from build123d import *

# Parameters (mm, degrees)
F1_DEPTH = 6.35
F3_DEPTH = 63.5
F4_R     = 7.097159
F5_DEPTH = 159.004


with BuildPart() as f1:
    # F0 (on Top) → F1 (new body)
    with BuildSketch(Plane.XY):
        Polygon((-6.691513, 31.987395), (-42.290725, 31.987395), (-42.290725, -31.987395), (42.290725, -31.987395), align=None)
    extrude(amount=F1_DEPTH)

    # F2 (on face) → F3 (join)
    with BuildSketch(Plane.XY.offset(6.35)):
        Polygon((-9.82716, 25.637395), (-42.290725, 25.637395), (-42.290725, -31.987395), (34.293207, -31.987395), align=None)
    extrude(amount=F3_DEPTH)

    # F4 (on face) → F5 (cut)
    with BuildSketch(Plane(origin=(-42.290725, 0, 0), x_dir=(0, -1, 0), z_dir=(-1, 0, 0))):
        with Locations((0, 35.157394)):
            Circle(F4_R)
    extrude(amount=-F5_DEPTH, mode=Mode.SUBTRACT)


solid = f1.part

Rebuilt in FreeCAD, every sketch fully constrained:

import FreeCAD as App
import Part
import Sketcher
Q = App.Units.Quantity

doc = App.newDocument("Part")
body = doc.addObject("PartDesign::Body", "Body")

sketch1 = body.newObject("Sketcher::SketchObject", "Sketch")
sketch1.AttachmentSupport = (doc.getObject("XY_Plane"), [""])
sketch1.MapMode = "FlatFace"
sketch1.addGeometry(Part.LineSegment(App.Vector(-7, 32, 0), App.Vector(-42, 32, 0)), False)
sketch1.addGeometry(Part.LineSegment(App.Vector(-42, 32, 0), App.Vector(-42, -32, 0)), False)
sketch1.addGeometry(Part.LineSegment(App.Vector(-42, -32, 0), App.Vector(42, -32, 0)), False)
sketch1.addGeometry(Part.LineSegment(App.Vector(42, -32, 0), App.Vector(-7, 32, 0)), False)
sketch1.addConstraint(Sketcher.Constraint("Coincident", 0, 2, 1, 1))
sketch1.addConstraint(Sketcher.Constraint("Coincident", 1, 2, 2, 1))
sketch1.addConstraint(Sketcher.Constraint("Coincident", 2, 2, 3, 1))
sketch1.addConstraint(Sketcher.Constraint("Coincident", 3, 2, 0, 1))
sketch1.addConstraint(Sketcher.Constraint("Horizontal", 0))
sketch1.addConstraint(Sketcher.Constraint("Vertical", 1))
sketch1.addConstraint(Sketcher.Constraint("Horizontal", 2))
sketch1.addConstraint(Sketcher.Constraint("Symmetric", 0, 2, 2, 2, -1, 1))
sketch1.addConstraint(Sketcher.Constraint("DistanceX", 2, 1, 2, 2, Q("84.58145 mm")))
sketch1.addConstraint(Sketcher.Constraint("DistanceY", 1, 2, 1, 1, Q("63.97479 mm")))
sketch1.addConstraint(Sketcher.Constraint("DistanceX", 0, 2, 0, 1, Q("35.599212 mm")))
pad1 = body.newObject("PartDesign::Pad", "Pad")
pad1.Profile = sketch1
pad1.Length = Q("0.25 in")

sketch2 = body.newObject("Sketcher::SketchObject", "Sketch001")
sketch2.AttachmentSupport = (doc.getObject("XY_Plane"), [""])
sketch2.MapMode = "FlatFace"
sketch2.AttachmentOffset = App.Placement(App.Vector(0, 0, 0.25 * 25.4), App.Rotation())
sketch2.addGeometry(Part.LineSegment(App.Vector(-10, 26, 0), App.Vector(-42, 26, 0)), False)
sketch2.addGeometry(Part.LineSegment(App.Vector(-42, 26, 0), App.Vector(-42, -32, 0)), False)
sketch2.addGeometry(Part.LineSegment(App.Vector(-42, -32, 0), App.Vector(34, -32, 0)), False)
sketch2.addGeometry(Part.LineSegment(App.Vector(34, -32, 0), App.Vector(-10, 26, 0)), False)
sketch2.addConstraint(Sketcher.Constraint("Coincident", 0, 2, 1, 1))
sketch2.addConstraint(Sketcher.Constraint("Coincident", 1, 2, 2, 1))
sketch2.addConstraint(Sketcher.Constraint("Coincident", 2, 2, 3, 1))
sketch2.addConstraint(Sketcher.Constraint("Coincident", 3, 2, 0, 1))
sketch2.addConstraint(Sketcher.Constraint("Horizontal", 0))
sketch2.addConstraint(Sketcher.Constraint("Vertical", 1))
sketch2.addConstraint(Sketcher.Constraint("Horizontal", 2))
sketch2.addConstraint(Sketcher.Constraint("DistanceY", 1, 2, 1, 1, Q("57.62479 mm")))
sketch2.addConstraint(Sketcher.Constraint("DistanceX", 0, 2, 0, 1, Q("32.463565 mm")))
sketch2.addConstraint(Sketcher.Constraint("DistanceX", 2, 1, 2, 2, Q("76.583932 mm")))
sketch2.addConstraint(Sketcher.Constraint("DistanceX", 3, 2, -1, 1, Q("9.82716 mm")))
sketch2.addConstraint(Sketcher.Constraint("DistanceY", -1, 1, 0, 2, Q("25.637395 mm")))
pad2 = body.newObject("PartDesign::Pad", "Pad001")
pad2.Profile = sketch2
pad2.Length = Q("2.5 in")

sketch3 = body.newObject("Sketcher::SketchObject", "Sketch002")
sketch3.AttachmentSupport = (doc.getObject("YZ_Plane"), [""])
sketch3.MapMode = "FlatFace"
sketch3.AttachmentOffset = App.Placement(App.Vector(0, 0, -42.290725), App.Rotation())
sketch3.addGeometry(Part.Circle(App.Vector(0, 35, 0), App.Vector(0, 0, 1), 7), False)
sketch3.addConstraint(Sketcher.Constraint("PointOnObject", 0, 3, -2))
sketch3.addConstraint(Sketcher.Constraint("Diameter", 0, Q("14.194318 mm")))
sketch3.addConstraint(Sketcher.Constraint("DistanceY", -1, 1, 0, 3, Q("35.157394 mm")))
pocket1 = body.newObject("PartDesign::Pocket", "Pocket")
pocket1.Profile = sketch3
pocket1.Length = Q("6.26 in")
pocket1.Reversed = True

doc.recompute()
